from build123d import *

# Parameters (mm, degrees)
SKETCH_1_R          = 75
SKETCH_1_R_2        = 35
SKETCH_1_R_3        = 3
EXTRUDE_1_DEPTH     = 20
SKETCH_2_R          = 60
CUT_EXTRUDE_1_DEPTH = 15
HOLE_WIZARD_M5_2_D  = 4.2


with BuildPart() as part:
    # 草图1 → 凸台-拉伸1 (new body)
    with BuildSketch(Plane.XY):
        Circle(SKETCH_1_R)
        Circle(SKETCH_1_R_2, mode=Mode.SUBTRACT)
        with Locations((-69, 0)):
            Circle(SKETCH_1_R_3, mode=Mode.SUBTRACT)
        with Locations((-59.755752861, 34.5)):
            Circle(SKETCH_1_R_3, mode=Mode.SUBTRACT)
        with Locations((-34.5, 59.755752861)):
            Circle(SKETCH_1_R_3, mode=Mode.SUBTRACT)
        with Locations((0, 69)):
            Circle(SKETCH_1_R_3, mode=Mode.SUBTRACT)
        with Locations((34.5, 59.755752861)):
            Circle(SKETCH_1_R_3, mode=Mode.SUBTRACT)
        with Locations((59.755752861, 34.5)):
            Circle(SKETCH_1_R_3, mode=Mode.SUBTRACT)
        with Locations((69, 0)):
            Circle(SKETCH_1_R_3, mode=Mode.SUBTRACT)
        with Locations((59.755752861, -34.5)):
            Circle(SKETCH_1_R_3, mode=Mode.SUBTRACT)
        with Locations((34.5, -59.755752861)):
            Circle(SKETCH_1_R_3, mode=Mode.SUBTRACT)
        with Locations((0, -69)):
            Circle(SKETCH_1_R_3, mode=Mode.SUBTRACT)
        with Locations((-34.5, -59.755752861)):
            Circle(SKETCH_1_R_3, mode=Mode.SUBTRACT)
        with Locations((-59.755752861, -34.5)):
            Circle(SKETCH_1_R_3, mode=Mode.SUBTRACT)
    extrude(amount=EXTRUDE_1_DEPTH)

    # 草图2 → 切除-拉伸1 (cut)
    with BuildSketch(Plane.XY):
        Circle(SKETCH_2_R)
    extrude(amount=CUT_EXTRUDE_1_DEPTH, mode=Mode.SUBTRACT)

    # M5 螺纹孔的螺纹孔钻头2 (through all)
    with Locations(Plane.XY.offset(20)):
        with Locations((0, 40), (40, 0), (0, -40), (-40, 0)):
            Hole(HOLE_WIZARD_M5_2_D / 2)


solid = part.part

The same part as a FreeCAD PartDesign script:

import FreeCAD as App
import Part
import Sketcher
from FreeCAD import Vector
Q = App.Units.Quantity

doc = App.newDocument("Part")
params = doc.addObject("Spreadsheet::Sheet", "Params")
for row, (alias, value) in enumerate([
    ("sketch1_diameter", "150 mm"),
    ("sketch1_diameter2", "6 mm"),
    ("sketch1_diameter3", "70 mm"),
    ("pad1_length", "20 mm"),
    ("sketch2_diameter", "120 mm"),
    ("pocket1_length", "15 mm"),
    ("sketch3_diameter", "4.2 mm"),
    ("hole_diameter", "4.2 mm"),
], start=1):
    params.set(f"A{row}", alias)
    params.set(f"B{row}", "=" + value)
    params.setAlias(f"B{row}", alias)

body = doc.addObject("PartDesign::Body", "Body")

sketch1 = body.newObject("Sketcher::SketchObject", "Sketch")
sketch1.AttachmentSupport = (doc.getObject("XY_Plane"), [""])
sketch1.MapMode = "FlatFace"
sketch1.addGeometry([
    Part.Circle(Vector(0, 0, 0), Vector(0, 0, 1), 75),
    Part.Circle(Vector(-34.5, -59.755753, 0), Vector(0, 0, 1), 3),
    Part.Circle(Vector(-59.755753, -34.5, 0), Vector(0, 0, 1), 3),
    Part.Circle(Vector(0, -69, 0), Vector(0, 0, 1), 3),
    Part.Circle(Vector(34.5, -59.755753, 0), Vector(0, 0, 1), 3),
    Part.Circle(Vector(59.755753, -34.5, 0), Vector(0, 0, 1), 3),
    Part.Circle(Vector(-69, 0, 0), Vector(0, 0, 1), 3),
    Part.Circle(Vector(-59.755753, 34.5, 0), Vector(0, 0, 1), 3),
    Part.Circle(Vector(-34.5, 59.755753, 0), Vector(0, 0, 1), 3),
    Part.Circle(Vector(0, 0, 0), Vector(0, 0, 1), 35),
    Part.Circle(Vector(69, 0, 0), Vector(0, 0, 1), 3),
    Part.Circle(Vector(59.755753, 34.5, 0), Vector(0, 0, 1), 3),
    Part.Circle(Vector(0, 69, 0), Vector(0, 0, 1), 3),
    Part.Circle(Vector(34.5, 59.755753, 0), Vector(0, 0, 1), 3),
], False)
sketch1.addConstraint([
    Sketcher.Constraint("Coincident", 0, 3, -1, 1),
    Sketcher.Constraint("Coincident", 9, 3, -1, 1),
    Sketcher.Constraint("Equal", 1, 2),
    Sketcher.Constraint("Equal", 2, 3),
    Sketcher.Constraint("Equal", 3, 4),
    Sketcher.Constraint("Equal", 4, 5),
    Sketcher.Constraint("Equal", 5, 6),
    Sketcher.Constraint("Equal", 6, 7),
    Sketcher.Constraint("Equal", 7, 8),
    Sketcher.Constraint("Equal", 8, 10),
    Sketcher.Constraint("Equal", 10, 11),
    Sketcher.Constraint("Equal", 11, 12),
    Sketcher.Constraint("Equal", 12, 13),
    Sketcher.Constraint("Symmetric", 5, 3, 7, 3, -1, 1),
    Sketcher.Constraint("Symmetric", 4, 3, 8, 3, -1, 1),
    Sketcher.Constraint("Symmetric", 6, 3, 10, 3, -1, 1),
    Sketcher.Constraint("Symmetric", 2, 3, 11, 3, -1, 1),
    Sketcher.Constraint("Symmetric", 3, 3, 12, 3, -1, 1),
    Sketcher.Constraint("Symmetric", 1, 3, 13, 3, -1, 1),
    Sketcher.Constraint("Symmetric", 1, 3, 4, 3, -2),
    Sketcher.Constraint("Symmetric", 2, 3, 5, 3, -2),
    Sketcher.Constraint("PointOnObject", 3, 3, -2),
    Sketcher.Constraint("PointOnObject", 6, 3, -1),
    Sketcher.Constraint("Diameter", 0, Q("150 mm")),
    Sketcher.Constraint("Diameter", 1, Q("6 mm")),
    Sketcher.Constraint("Diameter", 9, Q("70 mm")),
    Sketcher.Constraint("DistanceY", 3, 3, -1, 1, Q("69 mm")),
    Sketcher.Constraint("DistanceX", 6, 3, -1, 1, Q("69 mm")),
    Sketcher.Constraint("DistanceX", 1, 3, 4, 3, Q("69 mm")),
    Sketcher.Constraint("DistanceY", 2, 3, 7, 3, Q("69 mm")),
    Sketcher.Constraint("DistanceY", 1, 3, -1, 1, Q("59.755753 mm")),
    Sketcher.Constraint("DistanceX", 2, 3, -1, 1, Q("59.755753 mm")),
])
sketch1.setExpression("Constraints[23]", "Params.sketch1_diameter")
sketch1.setExpression("Constraints[24]", "Params.sketch1_diameter2")
sketch1.setExpression("Constraints[25]", "Params.sketch1_diameter3")
pad1 = body.newObject("PartDesign::Pad", "Pad")
pad1.Profile = sketch1
pad1.setExpression("Length", "Params.pad1_length")

sketch2 = body.newObject("Sketcher::SketchObject", "Sketch001")
sketch2.AttachmentSupport = (doc.getObject("XY_Plane"), [""])
sketch2.MapMode = "FlatFace"
sketch2.addGeometry(Part.Circle(Vector(0, 0, 0), Vector(0, 0, 1), 60), False)
sketch2.addConstraint([
    Sketcher.Constraint("Coincident", 0, 3, -1, 1),
    Sketcher.Constraint("Diameter", 0, Q("120 mm")),
])
sketch2.setExpression("Constraints[1]", "Params.sketch2_diameter")
pocket1 = body.newObject("PartDesign::Pocket", "Pocket")
pocket1.Profile = sketch2
pocket1.setExpression("Length", "Params.pocket1_length")
pocket1.Reversed = True

sketch3 = body.newObject("Sketcher::SketchObject", "Sketch002")
sketch3.AttachmentSupport = (doc.getObject("XY_Plane"), [""])
sketch3.MapMode = "FlatFace"
sketch3.AttachmentOffset = App.Placement(Vector(0, 0, 20), App.Rotation())
sketch3.addGeometry([
    Part.Circle(Vector(0, 40, 0), Vector(0, 0, 1), 2.1),
    Part.Circle(Vector(40, 0, 0), Vector(0, 0, 1), 2.1),
    Part.Circle(Vector(0, -40, 0), Vector(0, 0, 1), 2.1),
    Part.Circle(Vector(-40, 0, 0), Vector(0, 0, 1), 2.1),
], False)
sketch3.addConstraint([
    Sketcher.Constraint("Equal", 0, 1),
    Sketcher.Constraint("Equal", 1, 2),
    Sketcher.Constraint("Equal", 2, 3),
    Sketcher.Constraint("Symmetric", 0, 3, 2, 3, -1, 1),
    Sketcher.Constraint("Symmetric", 1, 3, 3, 3, -1, 1),
    Sketcher.Constraint("PointOnObject", 0, 3, -2),
    Sketcher.Constraint("PointOnObject", 1, 3, -1),
    Sketcher.Constraint("Diameter", 0, Q("4.2 mm")),
    Sketcher.Constraint("DistanceY", -1, 1, 0, 3, Q("40 mm")),
    Sketcher.Constraint("DistanceX", -1, 1, 1, 3, Q("40 mm")),
])
sketch3.setExpression("Constraints[7]", "Params.sketch3_diameter")
doc.recompute()
hole = body.newObject("PartDesign::Hole", "Hole")
hole.Profile = sketch3
hole.ThreadType = "None"
hole.setExpression("Diameter", "Params.hole_diameter")
hole.DepthType = "ThroughAll"

doc.recompute()
